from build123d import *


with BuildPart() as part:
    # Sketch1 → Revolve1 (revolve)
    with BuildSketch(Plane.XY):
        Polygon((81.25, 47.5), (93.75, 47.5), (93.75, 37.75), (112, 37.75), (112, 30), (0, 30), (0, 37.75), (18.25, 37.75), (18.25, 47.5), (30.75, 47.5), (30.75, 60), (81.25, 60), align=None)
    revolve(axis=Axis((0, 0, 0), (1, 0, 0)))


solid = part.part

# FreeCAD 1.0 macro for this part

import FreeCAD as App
import Part
import Sketcher
Q = App.Units.Quantity


def add_polygon(sketch, points):
    """Adds a closed chain of lines whose ends are joined by coincident constraints."""
    first, n = sketch.GeometryCount, len(points)
    for a, b in zip(points, points[1:] + points[:1]):
        sketch.addGeometry(Part.LineSegment(App.Vector(*a, 0), App.Vector(*b, 0)), False)
    for i in range(n):
        sketch.addConstraint(Sketcher.Constraint("Coincident", first + i, 2, first + (i + 1) % n, 1))

doc = App.newDocument("Part")
body = doc.addObject("PartDesign::Body", "Body")

sketch1 = doc.addObject("Sketcher::SketchObject", "Sketch")
body.addObject(sketch1)
sketch1.AttachmentSupport = (doc.XY_Plane, [""])
sketch1.MapMode = "FlatFace"
add_polygon(sketch1, [(94, 48), (81, 48), (81, 60), (31, 60), (31, 48), (18, 48), (18, 38), (0, 38), (0, 30), (112, 30), (112, 38), (94, 38)])
sketch1.addConstraint([
    Sketcher.Constraint("Horizontal", 0),
    Sketcher.Constraint("Vertical", 1),
    Sketcher.Constraint("Horizontal", 2),
    Sketcher.Constraint("Vertical", 3),
    Sketcher.Constraint("Horizontal", 4),
    Sketcher.Constraint("Vertical", 5),
    Sketcher.Constraint("Horizontal", 6),
    Sketcher.Constraint("Vertical", 7),
    Sketcher.Constraint("Horizontal", 8),
    Sketcher.Constraint("Vertical", 9),
    Sketcher.Constraint("Horizontal", 10),
    Sketcher.Constraint("Vertical", 11),
    Sketcher.Constraint("PointOnObject", 6, 2, -2),
    Sketcher.Constraint("Horizontal", 0, 2, 3, 2),
    Sketcher.Constraint("Horizontal", 6, 2, 9, 2),
    Sketcher.Constraint("Equal", 0, 4),
    Sketcher.Constraint("Equal", 6, 10),
    Sketcher.Constraint("Equal", 4, 1),
    Sketcher.Constraint("DistanceX", 8, 1, 8, 2, Q("112 mm")),
    Sketcher.Constraint("DistanceX", 0, 2, 0, 1, Q("12.5 mm")),
    Sketcher.Constraint("DistanceX", 2, 2, 2, 1, Q("50.5 mm")),
    Sketcher.Constraint("DistanceY", -1, 1, 1, 2, Q("60 mm")),
    Sketcher.Constraint("DistanceY", -1, 1, 7, 2, Q("30 mm")),
    Sketcher.Constraint("DistanceY", 5, 2, 5, 1, Q("9.75 mm")),
])
revolution = doc.addObject("PartDesign::Revolution", "Revolution")
body.addObject(revolution)
revolution.Profile = sketch1
revolution.ReferenceAxis = (sketch1, ["H_Axis"])
revolution.Angle = 360

doc.recompute()
